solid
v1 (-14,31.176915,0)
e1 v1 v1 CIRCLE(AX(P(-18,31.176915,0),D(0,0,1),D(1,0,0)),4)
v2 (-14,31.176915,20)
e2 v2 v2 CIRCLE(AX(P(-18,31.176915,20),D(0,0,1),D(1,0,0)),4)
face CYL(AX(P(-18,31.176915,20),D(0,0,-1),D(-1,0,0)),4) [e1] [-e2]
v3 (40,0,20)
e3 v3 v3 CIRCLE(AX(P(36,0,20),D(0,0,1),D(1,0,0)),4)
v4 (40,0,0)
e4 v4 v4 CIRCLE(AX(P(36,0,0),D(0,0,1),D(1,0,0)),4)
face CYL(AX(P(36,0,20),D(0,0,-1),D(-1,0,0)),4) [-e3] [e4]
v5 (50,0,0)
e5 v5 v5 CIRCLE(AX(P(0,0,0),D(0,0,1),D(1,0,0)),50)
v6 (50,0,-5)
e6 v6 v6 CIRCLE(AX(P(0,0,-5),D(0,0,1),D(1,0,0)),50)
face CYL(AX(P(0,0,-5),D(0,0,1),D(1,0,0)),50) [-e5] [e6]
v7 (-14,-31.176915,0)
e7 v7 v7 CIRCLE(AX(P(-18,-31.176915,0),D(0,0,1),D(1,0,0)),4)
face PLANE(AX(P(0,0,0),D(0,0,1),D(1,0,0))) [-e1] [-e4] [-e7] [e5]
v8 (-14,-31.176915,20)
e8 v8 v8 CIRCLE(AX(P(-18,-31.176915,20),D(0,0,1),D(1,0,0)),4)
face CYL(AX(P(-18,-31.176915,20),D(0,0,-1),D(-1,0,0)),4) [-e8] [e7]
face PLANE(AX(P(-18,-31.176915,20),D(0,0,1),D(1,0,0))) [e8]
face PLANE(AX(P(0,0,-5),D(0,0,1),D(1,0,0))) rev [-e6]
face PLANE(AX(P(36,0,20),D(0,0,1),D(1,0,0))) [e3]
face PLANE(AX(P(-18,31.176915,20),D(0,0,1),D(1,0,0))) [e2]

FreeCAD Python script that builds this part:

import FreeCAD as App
import Part
import Sketcher
Q = App.Units.Quantity

doc = App.newDocument("Part")
body = doc.addObject("PartDesign::Body", "Body")

sketch1 = doc.addObject("Sketcher::SketchObject", "Sketch")
body.addObject(sketch1)
sketch1.AttachmentSupport = (doc.XY_Plane, [""])
sketch1.MapMode = "FlatFace"
sketch1.addGeometry(Part.Circle(App.Vector(0, 0, 0), App.Vector(0, 0, 1), 50), False)
sketch1.addConstraint([
    Sketcher.Constraint("Coincident", 0, 3, -1, 1),
    Sketcher.Constraint("Diameter", 0, Q("100 mm")),
])
pad1 = doc.addObject("PartDesign::Pad", "Pad")
body.addObject(pad1)
pad1.Profile = sketch1
pad1.Length = 5
pad1.Reversed = True

sketch2 = doc.addObject("Sketcher::SketchObject", "Sketch001")
body.addObject(sketch2)
sketch2.AttachmentSupport = (doc.XY_Plane, [""])
sketch2.MapMode = "FlatFace"
sketch2.addGeometry([
    Part.Circle(App.Vector(36, 0, 0), App.Vector(0, 0, 1), 4),
    Part.Circle(App.Vector(-18, 31.176915, 0), App.Vector(0, 0, 1), 4),
    Part.Circle(App.Vector(-18, -31.176915, 0), App.Vector(0, 0, 1), 4),
], False)
sketch2.addConstraint([
    Sketcher.Constraint("Equal", 0, 1),
    Sketcher.Constraint("Equal", 1, 2),
    Sketcher.Constraint("Symmetric", 1, 3, 2, 3, -1),
    Sketcher.Constraint("PointOnObject", 0, 3, -1),
    Sketcher.Constraint("Diameter", 0, Q("8 mm")),
    Sketcher.Constraint("DistanceX", -1, 1, 0, 3, Q("36 mm")),
    Sketcher.Constraint("DistanceX", 1, 3, -1, 1, Q("18 mm")),
    Sketcher.Constraint("DistanceY", 2, 3, 1, 3, Q("62.353829 mm")),
])
pad2 = doc.addObject("PartDesign::Pad", "Pad001")
body.addObject(pad2)
pad2.Profile = sketch2
pad2.Length = 20

doc.recompute()
